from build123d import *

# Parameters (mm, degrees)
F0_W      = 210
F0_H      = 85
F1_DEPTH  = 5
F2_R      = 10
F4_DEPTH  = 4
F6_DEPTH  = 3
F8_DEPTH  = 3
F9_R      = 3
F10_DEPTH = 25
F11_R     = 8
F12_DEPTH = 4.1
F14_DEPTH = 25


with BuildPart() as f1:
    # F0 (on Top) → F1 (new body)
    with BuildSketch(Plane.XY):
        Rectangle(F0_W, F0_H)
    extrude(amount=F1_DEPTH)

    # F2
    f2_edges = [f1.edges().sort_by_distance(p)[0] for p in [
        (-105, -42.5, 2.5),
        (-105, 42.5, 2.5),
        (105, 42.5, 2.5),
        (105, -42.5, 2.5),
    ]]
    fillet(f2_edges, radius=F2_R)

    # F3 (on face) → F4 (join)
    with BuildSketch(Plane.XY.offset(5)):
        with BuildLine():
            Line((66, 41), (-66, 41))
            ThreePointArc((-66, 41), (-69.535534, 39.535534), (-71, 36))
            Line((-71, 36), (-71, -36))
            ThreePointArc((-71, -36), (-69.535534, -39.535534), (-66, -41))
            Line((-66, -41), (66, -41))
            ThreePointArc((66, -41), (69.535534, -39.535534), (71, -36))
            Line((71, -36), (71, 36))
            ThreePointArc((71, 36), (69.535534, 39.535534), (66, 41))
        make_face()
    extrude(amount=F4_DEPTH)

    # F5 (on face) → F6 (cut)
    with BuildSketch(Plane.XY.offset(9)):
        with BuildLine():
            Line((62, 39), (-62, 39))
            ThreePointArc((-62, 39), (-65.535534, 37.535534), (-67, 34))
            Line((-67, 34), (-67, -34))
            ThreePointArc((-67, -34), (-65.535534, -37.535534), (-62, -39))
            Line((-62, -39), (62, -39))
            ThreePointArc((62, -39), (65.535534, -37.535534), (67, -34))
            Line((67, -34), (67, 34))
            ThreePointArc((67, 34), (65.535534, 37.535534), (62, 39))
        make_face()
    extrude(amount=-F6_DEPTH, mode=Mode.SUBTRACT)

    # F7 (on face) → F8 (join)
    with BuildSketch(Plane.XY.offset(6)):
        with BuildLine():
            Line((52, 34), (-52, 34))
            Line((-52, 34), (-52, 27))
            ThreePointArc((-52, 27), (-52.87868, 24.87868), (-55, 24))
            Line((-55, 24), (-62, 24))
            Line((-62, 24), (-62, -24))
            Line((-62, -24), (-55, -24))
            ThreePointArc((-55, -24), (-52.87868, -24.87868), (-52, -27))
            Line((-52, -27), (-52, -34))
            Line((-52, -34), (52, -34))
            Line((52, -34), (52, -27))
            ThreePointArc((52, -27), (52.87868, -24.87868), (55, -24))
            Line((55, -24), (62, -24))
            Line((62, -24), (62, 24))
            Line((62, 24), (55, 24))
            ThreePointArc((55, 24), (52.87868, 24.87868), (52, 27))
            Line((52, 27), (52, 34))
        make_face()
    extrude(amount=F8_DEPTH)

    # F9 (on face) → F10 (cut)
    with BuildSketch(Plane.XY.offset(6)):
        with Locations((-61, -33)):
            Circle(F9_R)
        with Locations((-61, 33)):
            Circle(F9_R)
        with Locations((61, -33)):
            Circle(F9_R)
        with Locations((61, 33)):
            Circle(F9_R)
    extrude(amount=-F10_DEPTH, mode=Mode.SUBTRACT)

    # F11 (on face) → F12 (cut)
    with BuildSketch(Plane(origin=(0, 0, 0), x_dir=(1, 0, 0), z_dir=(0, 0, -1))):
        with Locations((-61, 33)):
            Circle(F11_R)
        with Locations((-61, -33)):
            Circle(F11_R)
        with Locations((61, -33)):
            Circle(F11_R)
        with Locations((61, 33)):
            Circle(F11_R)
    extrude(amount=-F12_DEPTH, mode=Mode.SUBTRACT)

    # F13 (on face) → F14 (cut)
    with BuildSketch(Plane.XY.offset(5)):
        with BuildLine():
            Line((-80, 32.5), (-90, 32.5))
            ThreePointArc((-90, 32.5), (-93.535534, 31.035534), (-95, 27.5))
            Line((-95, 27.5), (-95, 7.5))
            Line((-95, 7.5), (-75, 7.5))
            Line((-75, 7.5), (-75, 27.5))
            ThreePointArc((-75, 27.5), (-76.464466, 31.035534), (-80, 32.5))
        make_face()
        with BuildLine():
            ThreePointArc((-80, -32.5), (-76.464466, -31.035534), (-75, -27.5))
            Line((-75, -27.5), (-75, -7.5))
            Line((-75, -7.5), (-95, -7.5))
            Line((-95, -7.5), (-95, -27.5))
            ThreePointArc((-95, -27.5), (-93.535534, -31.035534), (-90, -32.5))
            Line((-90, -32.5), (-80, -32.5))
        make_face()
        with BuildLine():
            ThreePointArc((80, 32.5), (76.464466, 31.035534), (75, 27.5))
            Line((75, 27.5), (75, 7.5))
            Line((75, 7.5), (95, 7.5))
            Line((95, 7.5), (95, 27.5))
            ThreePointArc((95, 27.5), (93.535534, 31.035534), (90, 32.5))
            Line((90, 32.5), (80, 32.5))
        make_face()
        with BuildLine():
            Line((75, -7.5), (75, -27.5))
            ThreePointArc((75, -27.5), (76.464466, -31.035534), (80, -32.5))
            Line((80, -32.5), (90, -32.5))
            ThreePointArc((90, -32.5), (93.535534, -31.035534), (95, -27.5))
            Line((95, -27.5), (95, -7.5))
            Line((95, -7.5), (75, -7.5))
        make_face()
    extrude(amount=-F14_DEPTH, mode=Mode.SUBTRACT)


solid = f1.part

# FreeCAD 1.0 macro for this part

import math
import FreeCAD as App
import Part
import Sketcher

V = App.Vector
Q = App.Units.Quantity


def edges_at(feature, points):
    """Names of the edges that pass closest to the given points."""
    edges = feature.Shape.Edges
    near = lambda p: min(range(len(edges)), key=lambda i: edges[i].distToShape(Part.Vertex(*p))[0])
    return sorted({f"Edge{near(p) + 1}" for p in points})

doc = App.newDocument("Part")
body = doc.addObject("PartDesign::Body", "Body")

# Sketch on XY plane
sketch1 = body.newObject("Sketcher::SketchObject", "Sketch")
sketch1.AttachmentSupport = (doc.getObject("XY_Plane"), [""])
sketch1.MapMode = "FlatFace"
sketch1.addGeometry(Part.LineSegment(V(-105, 42.5, 0), V(-105, -42.5, 0)), False)
sketch1.addGeometry(Part.LineSegment(V(-105, -42.5, 0), V(105, -42.5, 0)), False)
sketch1.addGeometry(Part.LineSegment(V(105, -42.5, 0), V(105, 42.5, 0)), False)
sketch1.addGeometry(Part.LineSegment(V(105, 42.5, 0), V(-105, 42.5, 0)), False)
sketch1.addConstraint(Sketcher.Constraint("Coincident", 0, 2, 1, 1))
sketch1.addConstraint(Sketcher.Constraint("Coincident", 1, 2, 2, 1))
sketch1.addConstraint(Sketcher.Constraint("Coincident", 2, 2, 3, 1))
sketch1.addConstraint(Sketcher.Constraint("Coincident", 3, 2, 0, 1))
sketch1.addConstraint(Sketcher.Constraint("Vertical", 0))
sketch1.addConstraint(Sketcher.Constraint("Horizontal", 1))
sketch1.addConstraint(Sketcher.Constraint("Vertical", 2))
sketch1.addConstraint(Sketcher.Constraint("Horizontal", 3))
sketch1.addConstraint(Sketcher.Constraint("Symmetric", 0, 2, 2, 2, -1, 1))
sketch1.addConstraint(Sketcher.Constraint("DistanceX", 1, 1, 1, 2, Q("210 mm")))
sketch1.addConstraint(Sketcher.Constraint("DistanceY", 0, 2, 0, 1, Q("85 mm")))
pad1 = body.newObject("PartDesign::Pad", "Pad")
pad1.Profile = sketch1
pad1.Length = 5
doc.recompute()

fillet = body.newObject("PartDesign::Fillet", "Fillet")
fillet.Base = (pad1, edges_at(pad1, [
    (-105, -42.5, 2.5),
    (-105, 42.5, 2.5),
    (105, 42.5, 2.5),
    (105, -42.5, 2.5),
]))
fillet.Radius = 10

# Sketch on XY plane
sketch2 = body.newObject("Sketcher::SketchObject", "Sketch001")
sketch2.AttachmentSupport = (doc.getObject("XY_Plane"), [""])
sketch2.MapMode = "FlatFace"
sketch2.AttachmentOffset = App.Placement(V(0, 0, 5), App.Rotation())
sketch2.addGeometry(Part.LineSegment(V(66, 41, 0), V(-66, 41, 0)), False)
sketch2.addGeometry(Part.ArcOfCircle(Part.Circle(V(-66, 36, 0), V(0, 0, 1), 5), math.radians(89.999996), math.radians(180.000004)), False)
sketch2.addGeometry(Part.LineSegment(V(-71, 36, 0), V(-71, -36, 0)), False)
sketch2.addGeometry(Part.ArcOfCircle(Part.Circle(V(-66, -36, 0), V(0, 0, 1), 5), math.radians(179.999996), math.radians(270.000004)), False)
sketch2.addGeometry(Part.LineSegment(V(-66, -41, 0), V(66, -41, 0)), False)
sketch2.addGeometry(Part.ArcOfCircle(Part.Circle(V(66, -36, 0), V(0, 0, 1), 5), math.radians(-90.000004), math.radians(0.000004)), False)
sketch2.addGeometry(Part.LineSegment(V(71, -36, 0), V(71, 36, 0)), False)
sketch2.addGeometry(Part.ArcOfCircle(Part.Circle(V(66, 36, 0), V(0, 0, 1), 5), math.radians(-0.000004), math.radians(90.000004)), False)
sketch2.addConstraint(Sketcher.Constraint("Tangent", 0, 2, 1, 1))
sketch2.addConstraint(Sketcher.Constraint("Tangent", 1, 2, 2, 1))
sketch2.addConstraint(Sketcher.Constraint("Tangent", 2, 2, 3, 1))
sketch2.addConstraint(Sketcher.Constraint("Tangent", 3, 2, 4, 1))
sketch2.addConstraint(Sketcher.Constraint("Tangent", 4, 2, 5, 1))
sketch2.addConstraint(Sketcher.Constraint("Tangent", 5, 2, 6, 1))
sketch2.addConstraint(Sketcher.Constraint("Tangent", 6, 2, 7, 1))
sketch2.addConstraint(Sketcher.Constraint("Tangent", 7, 2, 0, 1))
sketch2.addConstraint(Sketcher.Constraint("Horizontal", 0))
sketch2.addConstraint(Sketcher.Constraint("Vertical", 2))
sketch2.addConstraint(Sketcher.Constraint("Horizontal", 4))
sketch2.addConstraint(Sketcher.Constraint("Vertical", 6))
sketch2.addConstraint(Sketcher.Constraint("Equal", 1, 3))
sketch2.addConstraint(Sketcher.Constraint("Equal", 3, 5))
sketch2.addConstraint(Sketcher.Constraint("Equal", 5, 7))
sketch2.addConstraint(Sketcher.Constraint("Symmetric", 1, 3, 5, 3, -1, 1))
sketch2.addConstraint(Sketcher.Constraint("Radius", 1, Q("5 mm")))
sketch2.addConstraint(Sketcher.Constraint("DistanceX", 0, 2, 0, 1, Q("132 mm")))
sketch2.addConstraint(Sketcher.Constraint("DistanceY", 2, 2, 2, 1, Q("72 mm")))
pad2 = body.newObject("PartDesign::Pad", "Pad001")
pad2.Profile = sketch2
pad2.Length = 4

# Sketch on XY plane
sketch3 = body.newObject("Sketcher::SketchObject", "Sketch002")
sketch3.AttachmentSupport = (doc.getObject("XY_Plane"), [""])
sketch3.MapMode = "FlatFace"
sketch3.AttachmentOffset = App.Placement(V(0, 0, 9), App.Rotation())
sketch3.addGeometry(Part.LineSegment(V(62, 39, 0), V(-62, 39, 0)), False)
sketch3.addGeometry(Part.ArcOfCircle(Part.Circle(V(-62, 34, 0), V(0, 0, 1), 5), math.radians(89.999996), math.radians(180.000004)), False)
sketch3.addGeometry(Part.LineSegment(V(-67, 34, 0), V(-67, -34, 0)), False)
sketch3.addGeometry(Part.ArcOfCircle(Part.Circle(V(-62, -34, 0), V(0, 0, 1), 5), math.radians(179.999996), math.radians(270.000004)), False)
sketch3.addGeometry(Part.LineSegment(V(-62, -39, 0), V(62, -39, 0)), False)
sketch3.addGeometry(Part.ArcOfCircle(Part.Circle(V(62, -34, 0), V(0, 0, 1), 5), math.radians(-90.000004), math.radians(0.000004)), False)
sketch3.addGeometry(Part.LineSegment(V(67, -34, 0), V(67, 34, 0)), False)
sketch3.addGeometry(Part.ArcOfCircle(Part.Circle(V(62, 34, 0), V(0, 0, 1), 5), math.radians(-0.000004), math.radians(90.000004)), False)
sketch3.addConstraint(Sketcher.Constraint("Tangent", 0, 2, 1, 1))
sketch3.addConstraint(Sketcher.Constraint("Tangent", 1, 2, 2, 1))
sketch3.addConstraint(Sketcher.Constraint("Tangent", 2, 2, 3, 1))
sketch3.addConstraint(Sketcher.Constraint("Tangent", 3, 2, 4, 1))
sketch3.addConstraint(Sketcher.Constraint("Tangent", 4, 2, 5, 1))
sketch3.addConstraint(Sketcher.Constraint("Tangent", 5, 2, 6, 1))
sketch3.addConstraint(Sketcher.Constraint("Tangent", 6, 2, 7, 1))
sketch3.addConstraint(Sketcher.Constraint("Tangent", 7, 2, 0, 1))
sketch3.addConstraint(Sketcher.Constraint("Horizontal", 0))
sketch3.addConstraint(Sketcher.Constraint("Vertical", 2))
sketch3.addConstraint(Sketcher.Constraint("Horizontal", 4))
sketch3.addConstraint(Sketcher.Constraint("Vertical", 6))
sketch3.addConstraint(Sketcher.Constraint("Equal", 1, 3))
sketch3.addConstraint(Sketcher.Constraint("Equal", 3, 5))
sketch3.addConstraint(Sketcher.Constraint("Equal", 5, 7))
sketch3.addConstraint(Sketcher.Constraint("Symmetric", 1, 3, 5, 3, -1, 1))
sketch3.addConstraint(Sketcher.Constraint("Radius", 1, Q("5 mm")))
sketch3.addConstraint(Sketcher.Constraint("DistanceX", 0, 2, 0, 1, Q("124 mm")))
sketch3.addConstraint(Sketcher.Constraint("DistanceY", 2, 2, 2, 1, Q("68 mm")))
pocket1 = body.newObject("PartDesign::Pocket", "Pocket")
pocket1.Profile = sketch3
pocket1.Length = 3

# Sketch on XY plane
sketch4 = body.newObject("Sketcher::SketchObject", "Sketch003")
sketch4.AttachmentSupport = (doc.getObject("XY_Plane"), [""])
sketch4.MapMode = "FlatFace"
sketch4.AttachmentOffset = App.Placement(V(0, 0, 6), App.Rotation())
sketch4.addGeometry(Part.LineSegment(V(52, 34, 0), V(-52, 34, 0)), False)
sketch4.addGeometry(Part.LineSegment(V(-52, 34, 0), V(-52, 27, 0)), False)
sketch4.addGeometry(Part.ArcOfCircle(Part.Circle(V(-55.000001, 27.000001, 0), V(0, 0, 1), 3.000001), math.radians(-89.999978), math.radians(-0.000022)), False)
sketch4.addGeometry(Part.LineSegment(V(-55, 24, 0), V(-62, 24, 0)), False)
sketch4.addGeometry(Part.LineSegment(V(-62, 24, 0), V(-62, -24, 0)), False)
sketch4.addGeometry(Part.LineSegment(V(-62, -24, 0), V(-55, -24, 0)), False)
sketch4.addGeometry(Part.ArcOfCircle(Part.Circle(V(-55.000001, -27.000001, 0), V(0, 0, 1), 3.000001), math.radians(0.000022), math.radians(89.999978)), False)
sketch4.addGeometry(Part.LineSegment(V(-52, -27, 0), V(-52, -34, 0)), False)
sketch4.addGeometry(Part.LineSegment(V(-52, -34, 0), V(52, -34, 0)), False)
sketch4.addGeometry(Part.LineSegment(V(52, -34, 0), V(52, -27, 0)), False)
sketch4.addGeometry(Part.ArcOfCircle(Part.Circle(V(55.000001, -27.000001, 0), V(0, 0, 1), 3.000001), math.radians(90.000022), math.radians(179.999978)), False)
sketch4.addGeometry(Part.LineSegment(V(55, -24, 0), V(62, -24, 0)), False)
sketch4.addGeometry(Part.LineSegment(V(62, -24, 0), V(62, 24, 0)), False)
sketch4.addGeometry(Part.LineSegment(V(62, 24, 0), V(55, 24, 0)), False)
sketch4.addGeometry(Part.ArcOfCircle(Part.Circle(V(55.000001, 27.000001, 0), V(0, 0, 1), 3.000001), math.radians(-179.999978), math.radians(-90.000022)), False)
sketch4.addGeometry(Part.LineSegment(V(52, 27, 0), V(52, 34, 0)), False)
sketch4.addConstraint(Sketcher.Constraint("Coincident", 0, 2, 1, 1))
sketch4.addConstraint(Sketcher.Constraint("Tangent", 1, 2, 2, 2))
sketch4.addConstraint(Sketcher.Constraint("Tangent", 2, 1, 3, 1))
sketch4.addConstraint(Sketcher.Constraint("Coincident", 3, 2, 4, 1))
sketch4.addConstraint(Sketcher.Constraint("Coincident", 4, 2, 5, 1))
sketch4.addConstraint(Sketcher.Constraint("Tangent", 5, 2, 6, 2))
sketch4.addConstraint(Sketcher.Constraint("Tangent", 6, 1, 7, 1))
sketch4.addConstraint(Sketcher.Constraint("Coincident", 7, 2, 8, 1))
sketch4.addConstraint(Sketcher.Constraint("Coincident", 8, 2, 9, 1))
sketch4.addConstraint(Sketcher.Constraint("Tangent", 9, 2, 10, 2))
sketch4.addConstraint(Sketcher.Constraint("Tangent", 10, 1, 11, 1))
sketch4.addConstraint(Sketcher.Constraint("Coincident", 11, 2, 12, 1))
sketch4.addConstraint(Sketcher.Constraint("Coincident", 12, 2, 13, 1))
sketch4.addConstraint(Sketcher.Constraint("Tangent", 13, 2, 14, 2))
sketch4.addConstraint(Sketcher.Constraint("Tangent", 14, 1, 15, 1))
sketch4.addConstraint(Sketcher.Constraint("Coincident", 15, 2, 0, 1))
sketch4.addConstraint(Sketcher.Constraint("Horizontal", 0))
sketch4.addConstraint(Sketcher.Constraint("Vertical", 1))
sketch4.addConstraint(Sketcher.Constraint("Horizontal", 3))
sketch4.addConstraint(Sketcher.Constraint("Vertical", 4))
sketch4.addConstraint(Sketcher.Constraint("Horizontal", 5))
sketch4.addConstraint(Sketcher.Constraint("Vertical", 7))
sketch4.addConstraint(Sketcher.Constraint("Horizontal", 8))
sketch4.addConstraint(Sketcher.Constraint("Vertical", 9))
sketch4.addConstraint(Sketcher.Constraint("Horizontal", 11))
sketch4.addConstraint(Sketcher.Constraint("Vertical", 12))
sketch4.addConstraint(Sketcher.Constraint("Horizontal", 13))
sketch4.addConstraint(Sketcher.Constraint("Vertical", 15))
sketch4.addConstraint(Sketcher.Constraint("Equal", 2, 6))
sketch4.addConstraint(Sketcher.Constraint("Equal", 6, 10))
sketch4.addConstraint(Sketcher.Constraint("Equal", 10, 14))
sketch4.addConstraint(Sketcher.Constraint("Symmetric", 2, 3, 10, 3, -1, 1))
sketch4.addConstraint(Sketcher.Constraint("Symmetric", 6, 3, 14, 3, -1, 1))
sketch4.addConstraint(Sketcher.Constraint("Symmetric", 6, 3, 10, 3, -2))
sketch4.addConstraint(Sketcher.Constraint("Equal", 5, 11))
sketch4.addConstraint(Sketcher.Constraint("Equal", 13, 1))
sketch4.addConstraint(Sketcher.Constraint("Equal", 1, 7))
sketch4.addConstraint(Sketcher.Constraint("Radius", 2, Q("3.000001 mm")))
sketch4.addConstraint(Sketcher.Constraint("DistanceX", 0, 2, 0, 1, Q("104 mm")))
sketch4.addConstraint(Sketcher.Constraint("DistanceX", 3, 2, 3, 1, Q("7 mm")))
sketch4.addConstraint(Sketcher.Constraint("DistanceY", 4, 2, 4, 1, Q("48 mm")))
pad3 = body.newObject("PartDesign::Pad", "Pad002")
pad3.Profile = sketch4
pad3.Length = 3

# Sketch on XY plane
sketch5 = body.newObject("Sketcher::SketchObject", "Sketch004")
sketch5.AttachmentSupport = (doc.getObject("XY_Plane"), [""])
sketch5.MapMode = "FlatFace"
sketch5.AttachmentOffset = App.Placement(V(0, 0, 6), App.Rotation())
sketch5.addGeometry(Part.Circle(V(-61, -33, 0), V(0, 0, 1), 3), False)
sketch5.addGeometry(Part.Circle(V(-61, 33, 0), V(0, 0, 1), 3), False)
sketch5.addGeometry(Part.Circle(V(61, -33, 0), V(0, 0, 1), 3), False)
sketch5.addGeometry(Part.Circle(V(61, 33, 0), V(0, 0, 1), 3), False)
sketch5.addConstraint(Sketcher.Constraint("Equal", 0, 1))
sketch5.addConstraint(Sketcher.Constraint("Equal", 1, 2))
sketch5.addConstraint(Sketcher.Constraint("Equal", 2, 3))
sketch5.addConstraint(Sketcher.Constraint("Symmetric", 1, 3, 2, 3, -1, 1))
sketch5.addConstraint(Sketcher.Constraint("Symmetric", 0, 3, 3, 3, -1, 1))
sketch5.addConstraint(Sketcher.Constraint("Symmetric", 0, 3, 2, 3, -2))
sketch5.addConstraint(Sketcher.Constraint("Diameter", 0, Q("6 mm")))
sketch5.addConstraint(Sketcher.Constraint("DistanceX", 0, 3, -1, 1, Q("61 mm")))
sketch5.addConstraint(Sketcher.Constraint("DistanceY", 0, 3, -1, 1, Q("33 mm")))
pocket2 = body.newObject("PartDesign::Pocket", "Pocket001")
pocket2.Profile = sketch5
pocket2.Length = 25

# Sketch on XY plane
sketch6 = body.newObject("Sketcher::SketchObject", "Sketch005")
sketch6.AttachmentSupport = (doc.getObject("XY_Plane"), [""])
sketch6.MapMode = "FlatFace"
sketch6.addGeometry(Part.Circle(V(-61, -33, 0), V(0, 0, 1), 8), False)
sketch6.addGeometry(Part.Circle(V(-61, 33, 0), V(0, 0, 1), 8), False)
sketch6.addGeometry(Part.Circle(V(61, 33, 0), V(0, 0, 1), 8), False)
sketch6.addGeometry(Part.Circle(V(61, -33, 0), V(0, 0, 1), 8), False)
sketch6.addConstraint(Sketcher.Constraint("Equal", 0, 1))
sketch6.addConstraint(Sketcher.Constraint("Equal", 1, 2))
sketch6.addConstraint(Sketcher.Constraint("Equal", 2, 3))
sketch6.addConstraint(Sketcher.Constraint("Symmetric", 0, 3, 2, 3, -1, 1))
sketch6.addConstraint(Sketcher.Constraint("Symmetric", 1, 3, 3, 3, -1, 1))
sketch6.addConstraint(Sketcher.Constraint("Symmetric", 1, 3, 2, 3, -2))
sketch6.addConstraint(Sketcher.Constraint("Diameter", 0, Q("16 mm")))
sketch6.addConstraint(Sketcher.Constraint("DistanceX", 0, 3, -1, 1, Q("61 mm")))
sketch6.addConstraint(Sketcher.Constraint("DistanceY", 0, 3, -1, 1, Q("33 mm")))
pocket3 = body.newObject("PartDesign::Pocket", "Pocket002")
pocket3.Profile = sketch6
pocket3.Length = 4.1
pocket3.Reversed = True

# Sketch on XY plane
sketch7 = body.newObject("Sketcher::SketchObject", "Sketch006")
sketch7.AttachmentSupport = (doc.getObject("XY_Plane"), [""])
sketch7.MapMode = "FlatFace"
sketch7.AttachmentOffset = App.Placement(V(0, 0, 5), App.Rotation())
sketch7.addGeometry(Part.LineSegment(V(-80, 32.5, 0), V(-90, 32.5, 0)), False)
sketch7.addGeometry(Part.ArcOfCircle(Part.Circle(V(-90, 27.5, 0), V(0, 0, 1), 5), math.radians(89.999996), math.radians(180.000004)), False)
sketch7.addGeometry(Part.LineSegment(V(-95, 27.5, 0), V(-95, 7.5, 0)), False)
sketch7.addGeometry(Part.LineSegment(V(-95, 7.5, 0), V(-75, 7.5, 0)), False)
sketch7.addGeometry(Part.LineSegment(V(-75, 7.5, 0), V(-75, 27.5, 0)), False)
sketch7.addGeometry(Part.ArcOfCircle(Part.Circle(V(-80, 27.5, 0), V(0, 0, 1), 5), math.radians(-0.000004), math.radians(90.000004)), False)
sketch7.addGeometry(Part.ArcOfCircle(Part.Circle(V(-80, -27.5, 0), V(0, 0, 1), 5), math.radians(-90.000004), math.radians(0.000004)), False)
sketch7.addGeometry(Part.LineSegment(V(-75, -27.5, 0), V(-75, -7.5, 0)), False)
sketch7.addGeometry(Part.LineSegment(V(-75, -7.5, 0), V(-95, -7.5, 0)), False)
sketch7.addGeometry(Part.LineSegment(V(-95, -7.5, 0), V(-95, -27.5, 0)), False)
sketch7.addGeometry(Part.ArcOfCircle(Part.Circle(V(-90, -27.5, 0), V(0, 0, 1), 5), math.radians(179.999996), math.radians(270.000004)), False)
sketch7.addGeometry(Part.LineSegment(V(-90, -32.5, 0), V(-80, -32.5, 0)), False)
sketch7.addGeometry(Part.ArcOfCircle(Part.Circle(V(80, 27.5, 0), V(0, 0, 1), 5), math.radians(89.999996), math.radians(180.000004)), False)
sketch7.addGeometry(Part.LineSegment(V(75, 27.5, 0), V(75, 7.5, 0)), False)
sketch7.addGeometry(Part.LineSegment(V(75, 7.5, 0), V(95, 7.5, 0)), False)
sketch7.addGeometry(Part.LineSegment(V(95, 7.5, 0), V(95, 27.5, 0)), False)
sketch7.addGeometry(Part.ArcOfCircle(Part.Circle(V(90, 27.5, 0), V(0, 0, 1), 5), math.radians(-0.000004), math.radians(90.000004)), False)
sketch7.addGeometry(Part.LineSegment(V(90, 32.5, 0), V(80, 32.5, 0)), False)
sketch7.addGeometry(Part.LineSegment(V(75, -7.5, 0), V(75, -27.5, 0)), False)
sketch7.addGeometry(Part.ArcOfCircle(Part.Circle(V(80, -27.5, 0), V(0, 0, 1), 5), math.radians(179.999996), math.radians(270.000004)), False)
sketch7.addGeometry(Part.LineSegment(V(80, -32.5, 0), V(90, -32.5, 0)), False)
sketch7.addGeometry(Part.ArcOfCircle(Part.Circle(V(90, -27.5, 0), V(0, 0, 1), 5), math.radians(-90.000004), math.radians(0.000004)), False)
sketch7.addGeometry(Part.LineSegment(V(95, -27.5, 0), V(95, -7.5, 0)), False)
sketch7.addGeometry(Part.LineSegment(V(95, -7.5, 0), V(75, -7.5, 0)), False)
sketch7.addConstraint(Sketcher.Constraint("Tangent", 0, 2, 1, 1))
sketch7.addConstraint(Sketcher.Constraint("Tangent", 1, 2, 2, 1))
sketch7.addConstraint(Sketcher.Constraint("Coincident", 2, 2, 3, 1))
sketch7.addConstraint(Sketcher.Constraint("Coincident", 3, 2, 4, 1))
sketch7.addConstraint(Sketcher.Constraint("Tangent", 4, 2, 5, 1))
sketch7.addConstraint(Sketcher.Constraint("Tangent", 5, 2, 0, 1))
sketch7.addConstraint(Sketcher.Constraint("Tangent", 6, 2, 7, 1))
sketch7.addConstraint(Sketcher.Constraint("Coincident", 7, 2, 8, 1))
sketch7.addConstraint(Sketcher.Constraint("Coincident", 8, 2, 9, 1))
sketch7.addConstraint(Sketcher.Constraint("Tangent", 9, 2, 10, 1))
sketch7.addConstraint(Sketcher.Constraint("Tangent", 10, 2, 11, 1))
sketch7.addConstraint(Sketcher.Constraint("Tangent", 11, 2, 6, 1))
sketch7.addConstraint(Sketcher.Constraint("Tangent", 12, 2, 13, 1))
sketch7.addConstraint(Sketcher.Constraint("Coincident", 13, 2, 14, 1))
sketch7.addConstraint(Sketcher.Constraint("Coincident", 14, 2, 15, 1))
sketch7.addConstraint(Sketcher.Constraint("Tangent", 15, 2, 16, 1))
sketch7.addConstraint(Sketcher.Constraint("Tangent", 16, 2, 17, 1))
sketch7.addConstraint(Sketcher.Constraint("Tangent", 17, 2, 12, 1))
sketch7.addConstraint(Sketcher.Constraint("Tangent", 18, 2, 19, 1))
sketch7.addConstraint(Sketcher.Constraint("Tangent", 19, 2, 20, 1))
sketch7.addConstraint(Sketcher.Constraint("Tangent", 20, 2, 21, 1))
sketch7.addConstraint(Sketcher.Constraint("Tangent", 21, 2, 22, 1))
sketch7.addConstraint(Sketcher.Constraint("Coincident", 22, 2, 23, 1))
sketch7.addConstraint(Sketcher.Constraint("Coincident", 23, 2, 18, 1))
sketch7.addConstraint(Sketcher.Constraint("Horizontal", 0))
sketch7.addConstraint(Sketcher.Constraint("Vertical", 2))
sketch7.addConstraint(Sketcher.Constraint("Horizontal", 3))
sketch7.addConstraint(Sketcher.Constraint("Vertical", 4))
sketch7.addConstraint(Sketcher.Constraint("Vertical", 7))
sketch7.addConstraint(Sketcher.Constraint("Horizontal", 8))
sketch7.addConstraint(Sketcher.Constraint("Vertical", 9))
sketch7.addConstraint(Sketcher.Constraint("Horizontal", 11))
sketch7.addConstraint(Sketcher.Constraint("Vertical", 13))
sketch7.addConstraint(Sketcher.Constraint("Horizontal", 14))
sketch7.addConstraint(Sketcher.Constraint("Vertical", 15))
sketch7.addConstraint(Sketcher.Constraint("Horizontal", 17))
sketch7.addConstraint(Sketcher.Constraint("Vertical", 18))
sketch7.addConstraint(Sketcher.Constraint("Horizontal", 20))
sketch7.addConstraint(Sketcher.Constraint("Vertical", 22))
sketch7.addConstraint(Sketcher.Constraint("Horizontal", 23))
sketch7.addConstraint(Sketcher.Constraint("Equal", 1, 5))
sketch7.addConstraint(Sketcher.Constraint("Equal", 5, 6))
sketch7.addConstraint(Sketcher.Constraint("Equal", 6, 10))
sketch7.addConstraint(Sketcher.Constraint("Equal", 10, 12))
sketch7.addConstraint(Sketcher.Constraint("Equal", 12, 16))
sketch7.addConstraint(Sketcher.Constraint("Equal", 16, 19))
sketch7.addConstraint(Sketcher.Constraint("Equal", 19, 21))
sketch7.addConstraint(Sketcher.Constraint("Symmetric", 6, 3, 12, 3, -1, 1))
sketch7.addConstraint(Sketcher.Constraint("Symmetric", 5, 3, 19, 3, -1, 1))
sketch7.addConstraint(Sketcher.Constraint("Symmetric", 8, 2, 14, 2, -1, 1))
sketch7.addConstraint(Sketcher.Constraint("Symmetric", 2, 2, 22, 2, -1, 1))
sketch7.addConstraint(Sketcher.Constraint("Symmetric", 5, 3, 12, 3, -2))
sketch7.addConstraint(Sketcher.Constraint("Symmetric", 2, 2, 14, 2, -2))
sketch7.addConstraint(Sketcher.Constraint("Equal", 23, 2))
sketch7.addConstraint(Sketcher.Constraint("Radius", 1, Q("5 mm")))
sketch7.addConstraint(Sketcher.Constraint("DistanceX", 0, 2, 0, 1, Q("10 mm")))
sketch7.addConstraint(Sketcher.Constraint("DistanceX", 1, 3, -1, 1, Q("90 mm")))
sketch7.addConstraint(Sketcher.Constraint("DistanceY", 6, 3, 5, 3, Q("55.000001 mm")))
pocket4 = body.newObject("PartDesign::Pocket", "Pocket003")
pocket4.Profile = sketch7
pocket4.Length = 25

doc.recompute()
